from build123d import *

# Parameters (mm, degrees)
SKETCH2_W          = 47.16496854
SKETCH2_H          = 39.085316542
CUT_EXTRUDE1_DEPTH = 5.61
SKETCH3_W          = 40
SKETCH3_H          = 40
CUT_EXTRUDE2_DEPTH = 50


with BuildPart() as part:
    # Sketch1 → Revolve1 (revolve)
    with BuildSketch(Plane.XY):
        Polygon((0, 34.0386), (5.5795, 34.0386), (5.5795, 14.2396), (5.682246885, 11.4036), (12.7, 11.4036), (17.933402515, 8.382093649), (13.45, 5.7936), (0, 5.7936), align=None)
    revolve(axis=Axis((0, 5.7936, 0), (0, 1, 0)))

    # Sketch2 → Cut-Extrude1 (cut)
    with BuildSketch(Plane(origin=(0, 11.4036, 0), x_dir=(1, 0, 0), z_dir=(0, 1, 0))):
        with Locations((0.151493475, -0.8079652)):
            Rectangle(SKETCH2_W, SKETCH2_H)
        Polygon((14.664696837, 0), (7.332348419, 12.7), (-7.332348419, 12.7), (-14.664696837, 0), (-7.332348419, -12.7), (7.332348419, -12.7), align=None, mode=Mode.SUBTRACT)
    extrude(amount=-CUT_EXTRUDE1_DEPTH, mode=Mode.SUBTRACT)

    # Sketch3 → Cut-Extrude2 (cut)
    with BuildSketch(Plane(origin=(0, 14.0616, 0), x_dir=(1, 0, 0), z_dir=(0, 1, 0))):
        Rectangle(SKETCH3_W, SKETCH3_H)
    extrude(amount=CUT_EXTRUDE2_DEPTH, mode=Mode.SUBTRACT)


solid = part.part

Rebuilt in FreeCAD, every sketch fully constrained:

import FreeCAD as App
import Part
import Sketcher

V = App.Vector
Q = App.Units.Quantity


def add_polygon(sketch, points):
    """Adds a closed chain of lines whose ends are joined by coincident constraints."""
    first, n = sketch.GeometryCount, len(points)
    for a, b in zip(points, points[1:] + points[:1]):
        sketch.addGeometry(Part.LineSegment(App.Vector(*a, 0), App.Vector(*b, 0)), False)
    for i in range(n):
        sketch.addConstraint(Sketcher.Constraint("Coincident", first + i, 2, first + (i + 1) % n, 1))

doc = App.newDocument("Part")
body = doc.addObject("PartDesign::Body", "Body")

# Sketch on XY plane
sketch1 = doc.addObject("Sketcher::SketchObject", "Sketch")
body.addObject(sketch1)
sketch1.AttachmentSupport = (doc.XY_Plane, [""])
sketch1.MapMode = "FlatFace"
add_polygon(sketch1, [(5.6, 34), (0, 34), (0, 5.8), (13.4, 5.8), (17.9, 8.4), (12.7, 11.4), (5.7, 11.4), (5.6, 14.2)])  # lines 0-7
sketch1.addConstraint(Sketcher.Constraint("Horizontal", 0))
sketch1.addConstraint(Sketcher.Constraint("Vertical", 1))
sketch1.addConstraint(Sketcher.Constraint("Horizontal", 2))
sketch1.addConstraint(Sketcher.Constraint("Horizontal", 5))
sketch1.addConstraint(Sketcher.Constraint("Vertical", 7))
sketch1.addConstraint(Sketcher.Constraint("PointOnObject", 0, 2, -2))
sketch1.addConstraint(Sketcher.Constraint("Angle", 3, Q("30 deg")))
sketch1.addConstraint(Sketcher.Constraint("Angle", 4, Q("150 deg")))
sketch1.addConstraint(Sketcher.Constraint("DistanceX", 2, 1, 2, 2, Q("13.45 mm")))
sketch1.addConstraint(Sketcher.Constraint("DistanceX", -1, 1, 4, 2, Q("12.7 mm")))
sketch1.addConstraint(Sketcher.Constraint("DistanceY", 1, 2, 1, 1, Q("28.245 mm")))
sketch1.addConstraint(Sketcher.Constraint("DistanceY", 7, 1, 7, 2, Q("19.799 mm")))
sketch1.addConstraint(Sketcher.Constraint("DistanceY", 2, 2, 4, 2, Q("5.61 mm")))
sketch1.addConstraint(Sketcher.Constraint("DistanceX", 0, 2, 0, 1, Q("5.5795 mm")))
sketch1.addConstraint(Sketcher.Constraint("DistanceY", -1, 1, 0, 2, Q("34.0386 mm")))
sketch1.addConstraint(Sketcher.Constraint("Distance", 6, Q("2.837861 mm")))
revolution = doc.addObject("PartDesign::Revolution", "Revolution")
body.addObject(revolution)
revolution.Profile = sketch1
revolution.ReferenceAxis = (sketch1, ["V_Axis"])
revolution.Angle = 360

# Sketch on XZ plane
sketch2 = doc.addObject("Sketcher::SketchObject", "Sketch001")
body.addObject(sketch2)
sketch2.AttachmentSupport = (doc.XZ_Plane, [""])
sketch2.MapMode = "FlatFace"
sketch2.AttachmentOffset = App.Placement(V(0, 0, -11.4036), App.Rotation())
add_polygon(sketch2, [(-23, -19), (-23, 20), (24, 20), (24, -19)])  # lines 0-3
add_polygon(sketch2, [(7, -13), (15, 0), (7, 13), (-7, 13), (-15, 0), (-7, -13)])  # lines 4-9
sketch2.addConstraint(Sketcher.Constraint("Vertical", 0))
sketch2.addConstraint(Sketcher.Constraint("Horizontal", 1))
sketch2.addConstraint(Sketcher.Constraint("Vertical", 2))
sketch2.addConstraint(Sketcher.Constraint("Horizontal", 3))
sketch2.addConstraint(Sketcher.Constraint("Horizontal", 6))
sketch2.addConstraint(Sketcher.Constraint("Horizontal", 9))
sketch2.addConstraint(Sketcher.Constraint("Symmetric", 4, 2, 7, 2, -1, 1))
sketch2.addConstraint(Sketcher.Constraint("Symmetric", 5, 2, 8, 2, -1, 1))
sketch2.addConstraint(Sketcher.Constraint("PointOnObject", 4, 2, -1))
sketch2.addConstraint(Sketcher.Constraint("Parallel", 4, 7))
sketch2.addConstraint(Sketcher.Constraint("Vertical", 6, 2, 8, 2))
sketch2.addConstraint(Sketcher.Constraint("Angle", 4, Q("60 deg")))
sketch2.addConstraint(Sketcher.Constraint("DistanceY", -1, 1, 5, 2, Q("12.7 mm")))
sketch2.addConstraint(Sketcher.Constraint("DistanceX", 1, 1, 1, 2, Q("47.164969 mm")))
sketch2.addConstraint(Sketcher.Constraint("DistanceX", 6, 2, 6, 1, Q("14.664697 mm")))
sketch2.addConstraint(Sketcher.Constraint("DistanceY", 0, 1, 0, 2, Q("39.085317 mm")))
sketch2.addConstraint(Sketcher.Constraint("DistanceX", 0, 2, -1, 1, Q("23.430991 mm")))
sketch2.addConstraint(Sketcher.Constraint("DistanceY", -1, 1, 0, 2, Q("20.350623 mm")))
pocket1 = doc.addObject("PartDesign::Pocket", "Pocket")
body.addObject(pocket1)
pocket1.Profile = sketch2
pocket1.Length = 5.61
pocket1.Reversed = True

# Sketch on XZ plane
sketch3 = doc.addObject("Sketcher::SketchObject", "Sketch002")
body.addObject(sketch3)
sketch3.AttachmentSupport = (doc.XZ_Plane, [""])
sketch3.MapMode = "FlatFace"
sketch3.AttachmentOffset = App.Placement(V(0, 0, -14.0616), App.Rotation())
add_polygon(sketch3, [(-20, -20), (-20, 20), (20, 20), (20, -20)])  # lines 0-3
sketch3.addConstraint(Sketcher.Constraint("Vertical", 0))
sketch3.addConstraint(Sketcher.Constraint("Horizontal", 1))
sketch3.addConstraint(Sketcher.Constraint("Vertical", 2))
sketch3.addConstraint(Sketcher.Constraint("Horizontal", 3))
sketch3.addConstraint(Sketcher.Constraint("Symmetric", 0, 2, 2, 2, -1, 1))
sketch3.addConstraint(Sketcher.Constraint("Equal", 3, 0))
sketch3.addConstraint(Sketcher.Constraint("DistanceX", 1, 1, 1, 2, Q("40 mm")))
pocket2 = doc.addObject("PartDesign::Pocket", "Pocket001")
body.addObject(pocket2)
pocket2.Profile = sketch3
pocket2.Length = 50

doc.recompute()
